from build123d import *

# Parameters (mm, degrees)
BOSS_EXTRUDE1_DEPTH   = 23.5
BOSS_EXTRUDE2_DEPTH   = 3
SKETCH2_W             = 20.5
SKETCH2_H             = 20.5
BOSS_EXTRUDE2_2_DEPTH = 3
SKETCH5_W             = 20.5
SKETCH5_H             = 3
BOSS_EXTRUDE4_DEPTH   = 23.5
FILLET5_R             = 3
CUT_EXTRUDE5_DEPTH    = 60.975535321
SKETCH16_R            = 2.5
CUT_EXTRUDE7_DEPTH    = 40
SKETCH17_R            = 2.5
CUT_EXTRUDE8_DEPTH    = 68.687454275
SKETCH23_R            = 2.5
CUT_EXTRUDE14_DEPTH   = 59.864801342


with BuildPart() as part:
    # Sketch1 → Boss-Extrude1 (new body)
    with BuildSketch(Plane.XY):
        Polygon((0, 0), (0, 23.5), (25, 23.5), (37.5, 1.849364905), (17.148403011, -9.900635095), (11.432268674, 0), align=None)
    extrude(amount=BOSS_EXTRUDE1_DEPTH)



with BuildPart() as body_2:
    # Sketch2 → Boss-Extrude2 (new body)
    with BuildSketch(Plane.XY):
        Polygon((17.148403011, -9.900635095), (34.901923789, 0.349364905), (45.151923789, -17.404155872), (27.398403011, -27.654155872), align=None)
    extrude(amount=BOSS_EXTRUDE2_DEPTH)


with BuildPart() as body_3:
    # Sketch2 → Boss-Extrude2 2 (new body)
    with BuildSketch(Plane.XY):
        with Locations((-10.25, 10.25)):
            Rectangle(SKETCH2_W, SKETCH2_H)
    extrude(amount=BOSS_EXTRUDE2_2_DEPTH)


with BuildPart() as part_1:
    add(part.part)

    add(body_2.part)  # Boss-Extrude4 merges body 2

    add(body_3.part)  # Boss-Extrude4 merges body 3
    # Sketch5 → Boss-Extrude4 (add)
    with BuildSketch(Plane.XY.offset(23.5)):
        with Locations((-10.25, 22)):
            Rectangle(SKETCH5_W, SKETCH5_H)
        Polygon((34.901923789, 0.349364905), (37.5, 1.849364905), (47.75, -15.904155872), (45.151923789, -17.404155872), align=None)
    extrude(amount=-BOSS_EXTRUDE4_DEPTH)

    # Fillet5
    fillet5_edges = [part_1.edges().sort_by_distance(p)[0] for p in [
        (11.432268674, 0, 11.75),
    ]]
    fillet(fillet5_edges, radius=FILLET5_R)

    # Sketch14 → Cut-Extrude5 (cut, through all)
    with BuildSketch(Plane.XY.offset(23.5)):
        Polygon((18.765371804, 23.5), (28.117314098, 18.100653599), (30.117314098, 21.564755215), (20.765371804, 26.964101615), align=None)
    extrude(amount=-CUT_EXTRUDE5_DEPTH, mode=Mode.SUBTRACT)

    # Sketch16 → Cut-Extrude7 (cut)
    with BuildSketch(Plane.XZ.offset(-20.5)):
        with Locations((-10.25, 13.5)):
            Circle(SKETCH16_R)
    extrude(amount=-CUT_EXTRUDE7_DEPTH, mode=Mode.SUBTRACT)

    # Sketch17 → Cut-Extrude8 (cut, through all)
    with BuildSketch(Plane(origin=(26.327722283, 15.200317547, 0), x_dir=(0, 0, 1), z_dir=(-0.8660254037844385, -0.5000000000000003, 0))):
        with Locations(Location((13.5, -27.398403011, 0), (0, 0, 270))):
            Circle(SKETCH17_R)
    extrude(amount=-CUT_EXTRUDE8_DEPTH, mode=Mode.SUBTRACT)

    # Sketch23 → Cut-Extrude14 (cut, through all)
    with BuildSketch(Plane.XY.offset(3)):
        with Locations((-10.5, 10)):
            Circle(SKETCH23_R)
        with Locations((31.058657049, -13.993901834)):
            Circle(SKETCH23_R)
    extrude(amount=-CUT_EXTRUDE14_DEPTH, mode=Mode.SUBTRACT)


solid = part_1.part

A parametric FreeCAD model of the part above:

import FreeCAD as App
import Part
import Sketcher
from FreeCAD import Vector
Q = App.Units.Quantity


def edges_at(feature, points):
    """Names of the edges that pass closest to the given points."""
    edges = feature.Shape.Edges
    near = lambda p: min(range(len(edges)), key=lambda i: edges[i].distToShape(Part.Vertex(*p))[0])
    return sorted({f"Edge{near(p) + 1}" for p in points})


def add_polygon(sketch, points):
    """Adds a closed chain of lines whose ends are joined by coincident constraints."""
    first, n = sketch.GeometryCount, len(points)
    for a, b in zip(points, points[1:] + points[:1]):
        sketch.addGeometry(Part.LineSegment(App.Vector(*a, 0), App.Vector(*b, 0)), False)
    for i in range(n):
        sketch.addConstraint(Sketcher.Constraint("Coincident", first + i, 2, first + (i + 1) % n, 1))

doc = App.newDocument("Part")
body = doc.addObject("PartDesign::Body", "Body")

sketch1 = body.newObject("Sketcher::SketchObject", "Sketch")
sketch1.AttachmentSupport = (doc.getObject("XY_Plane"), [""])
sketch1.MapMode = "FlatFace"
add_polygon(sketch1, [(0, 24), (0, 0), (11, 0), (17, -10), (38, 2), (25, 24)])
sketch1.addConstraint(Sketcher.Constraint("Vertical", 0))
sketch1.addConstraint(Sketcher.Constraint("Horizontal", 1))
sketch1.addConstraint(Sketcher.Constraint("Horizontal", 5))
sketch1.addConstraint(Sketcher.Constraint("Coincident", 0, 2, -1, 1))
sketch1.addConstraint(Sketcher.Constraint("Perpendicular", 2, 3))
sketch1.addConstraint(Sketcher.Constraint("Perpendicular", 3, 4))
sketch1.addConstraint(Sketcher.Constraint("DistanceX", 5, 2, 5, 1, 25.0))
sketch1.addConstraint(Sketcher.Constraint("Angle", 2, Q("-60 deg")))
sketch1.addConstraint(Sketcher.Constraint("Distance", 4, 25.0))
sketch1.addConstraint(Sketcher.Constraint("DistanceY", 0, 2, 0, 1, 23.5))
sketch1.addConstraint(Sketcher.Constraint("Distance", 3, 23.5))
pad1 = body.newObject("PartDesign::Pad", "Pad")
pad1.Profile = sketch1
pad1.Length = 23.5
body2 = doc.addObject("PartDesign::Body", "Body001")

sketch2 = body2.newObject("Sketcher::SketchObject", "Sketch001")
sketch2.AttachmentSupport = (doc.getObject("XY_Plane001"), [""])
sketch2.MapMode = "FlatFace"
add_polygon(sketch2, [(35, 0), (17, -10), (27, -28), (45, -17)])
sketch2.addConstraint(Sketcher.Constraint("Perpendicular", 0, 1))
sketch2.addConstraint(Sketcher.Constraint("Perpendicular", 1, 2))
sketch2.addConstraint(Sketcher.Constraint("Perpendicular", 2, 3))
sketch2.addConstraint(Sketcher.Constraint("Equal", 0, 1))
sketch2.addConstraint(Sketcher.Constraint("Angle", 0, Q("-150 deg")))
sketch2.addConstraint(Sketcher.Constraint("Distance", 0, 20.5))
sketch2.addConstraint(Sketcher.Constraint("DistanceX", -1, 1, 0, 2, 17.148403))
sketch2.addConstraint(Sketcher.Constraint("DistanceY", 0, 2, -1, 1, 9.900635))
pad2 = body2.newObject("PartDesign::Pad", "Pad001")
pad2.Profile = sketch2
pad2.Length = 3
body3 = doc.addObject("PartDesign::Body", "Body002")

sketch3 = body3.newObject("Sketcher::SketchObject", "Sketch002")
sketch3.AttachmentSupport = (doc.getObject("XY_Plane002"), [""])
sketch3.MapMode = "FlatFace"
add_polygon(sketch3, [(-20, 20), (-20, 0), (0, 0), (0, 20)])
sketch3.addConstraint(Sketcher.Constraint("Vertical", 0))
sketch3.addConstraint(Sketcher.Constraint("Horizontal", 1))
sketch3.addConstraint(Sketcher.Constraint("Vertical", 2))
sketch3.addConstraint(Sketcher.Constraint("Horizontal", 3))
sketch3.addConstraint(Sketcher.Constraint("Coincident", 1, 2, -1, 1))
sketch3.addConstraint(Sketcher.Constraint("Equal", 3, 0))
sketch3.addConstraint(Sketcher.Constraint("DistanceX", 1, 1, 1, 2, 20.5))
pad3 = body3.newObject("PartDesign::Pad", "Pad002")
pad3.Profile = sketch3
pad3.Length = 3
doc.recompute()

boolean = body.newObject("PartDesign::Boolean", "Boolean")
boolean.Type = "Fuse"
boolean.addObjects([body2])
doc.recompute()

boolean2 = body.newObject("PartDesign::Boolean", "Boolean001")
boolean2.Type = "Fuse"
boolean2.addObjects([body3])

sketch4 = body.newObject("Sketcher::SketchObject", "Sketch003")
sketch4.AttachmentSupport = (doc.getObject("XY_Plane"), [""])
sketch4.MapMode = "FlatFace"
sketch4.AttachmentOffset = App.Placement(Vector(0, 0, 23.5), App.Rotation())
add_polygon(sketch4, [(-20.5, 23.5), (-20.5, 20.5), (0, 20.5), (0, 23.5)])
add_polygon(sketch4, [(37.5, 1.8), (34.9, 0.3), (45.2, -17.4), (47.8, -15.9)])
sketch4.addConstraint(Sketcher.Constraint("Vertical", 0))
sketch4.addConstraint(Sketcher.Constraint("Horizontal", 1))
sketch4.addConstraint(Sketcher.Constraint("Vertical", 2))
sketch4.addConstraint(Sketcher.Constraint("Horizontal", 3))
sketch4.addConstraint(Sketcher.Constraint("PointOnObject", 1, 2, -2))
sketch4.addConstraint(Sketcher.Constraint("Perpendicular", 4, 5))
sketch4.addConstraint(Sketcher.Constraint("Perpendicular", 5, 6))
sketch4.addConstraint(Sketcher.Constraint("Perpendicular", 6, 7))
sketch4.addConstraint(Sketcher.Constraint("DistanceY", 0, 2, 0, 1, 3.0))
sketch4.addConstraint(Sketcher.Constraint("Angle", 4, Q("-150 deg")))
sketch4.addConstraint(Sketcher.Constraint("Distance", 4, 3.0))
sketch4.addConstraint(Sketcher.Constraint("DistanceX", 1, 1, 1, 2, 20.5))
sketch4.addConstraint(Sketcher.Constraint("Distance", 5, 20.5))
sketch4.addConstraint(Sketcher.Constraint("DistanceY", -1, 1, 0, 2, 20.5))
sketch4.addConstraint(Sketcher.Constraint("DistanceX", -1, 1, 7, 2, 37.5))
sketch4.addConstraint(Sketcher.Constraint("DistanceY", -1, 1, 4, 2, 0.349365))
pad4 = body.newObject("PartDesign::Pad", "Pad003")
pad4.Profile = sketch4
pad4.Length = 23.5
pad4.Reversed = True
doc.recompute()

fillet = body.newObject("PartDesign::Fillet", "Fillet")
fillet.Base = (pad4, edges_at(pad4, [(11.432, 0, 11.75)]))
fillet.Radius = 3

sketch5 = body.newObject("Sketcher::SketchObject", "Sketch004")
sketch5.AttachmentSupport = (doc.getObject("XY_Plane"), [""])
sketch5.MapMode = "FlatFace"
sketch5.AttachmentOffset = App.Placement(Vector(0, 0, 23.5), App.Rotation())
add_polygon(sketch5, [(18.8, 23.5), (28.1, 18.1), (30.1, 21.6), (20.8, 27)])
sketch5.addConstraint(Sketcher.Constraint("Perpendicular", 0, 1))
sketch5.addConstraint(Sketcher.Constraint("Perpendicular", 1, 2))
sketch5.addConstraint(Sketcher.Constraint("Perpendicular", 2, 3))
sketch5.addConstraint(Sketcher.Constraint("Angle", 0, Q("-30 deg")))
sketch5.addConstraint(Sketcher.Constraint("Distance", 1, 4.0))
sketch5.addConstraint(Sketcher.Constraint("DistanceY", -1, 1, 3, 2, 23.5))
sketch5.addConstraint(Sketcher.Constraint("DistanceX", -1, 1, 2, 2, 20.765372))
sketch5.addConstraint(Sketcher.Constraint("DistanceY", 0, 2, 2, 2, 8.863448))
pocket1 = body.newObject("PartDesign::Pocket", "Pocket")
pocket1.Profile = sketch5
pocket1.Type = "ThroughAll"

sketch6 = body.newObject("Sketcher::SketchObject", "Sketch005")
sketch6.AttachmentSupport = (doc.getObject("XZ_Plane"), [""])
sketch6.MapMode = "FlatFace"
sketch6.AttachmentOffset = App.Placement(Vector(0, 0, -20.5), App.Rotation())
sketch6.addGeometry(Part.Circle(Vector(-10.2, 13.5, 0), Vector(0, 0, 1), 2.5), False)
sketch6.addConstraint(Sketcher.Constraint("Diameter", 0, 5.0))
sketch6.addConstraint(Sketcher.Constraint("DistanceY", -1, 1, 0, 3, 13.5))
sketch6.addConstraint(Sketcher.Constraint("DistanceX", 0, 3, -1, 1, 10.25))
pocket2 = body.newObject("PartDesign::Pocket", "Pocket001")
pocket2.Profile = sketch6
pocket2.Length = 40

sketch7 = body.newObject("Sketcher::SketchObject", "Sketch006")
sketch7.Placement = App.Placement(Vector(26.327722, 15.200318, 0), App.Rotation(Vector(0, 0, 1), Vector(-0.5, 0.866025404, 0), Vector(-0.866025404, -0.5, 0), "ZXY"))
sketch7.addGeometry(Part.Circle(Vector(13.5, -27.4, 0), Vector(0, 0, 1), 2.5), False)
sketch7.addConstraint(Sketcher.Constraint("Diameter", 0, 5.0))
sketch7.addConstraint(Sketcher.Constraint("DistanceX", -1, 1, 0, 3, 13.5))
sketch7.addConstraint(Sketcher.Constraint("DistanceY", 0, 3, -1, 1, 27.398403))
pocket3 = body.newObject("PartDesign::Pocket", "Pocket002")
pocket3.Profile = sketch7
pocket3.Type = "ThroughAll"

sketch8 = body.newObject("Sketcher::SketchObject", "Sketch007")
sketch8.AttachmentSupport = (doc.getObject("XY_Plane"), [""])
sketch8.MapMode = "FlatFace"
sketch8.AttachmentOffset = App.Placement(Vector(0, 0, 3), App.Rotation())
sketch8.addGeometry(Part.Circle(Vector(-10.5, 10, 0), Vector(0, 0, 1), 2.5), False)
sketch8.addGeometry(Part.Circle(Vector(31.1, -14, 0), Vector(0, 0, 1), 2.5), False)
sketch8.addConstraint(Sketcher.Constraint("Equal", 0, 1))
sketch8.addConstraint(Sketcher.Constraint("Diameter", 0, 5.0))
sketch8.addConstraint(Sketcher.Constraint("DistanceY", -1, 1, 0, 3, 10.0))
sketch8.addConstraint(Sketcher.Constraint("DistanceX", 0, 3, -1, 1, 10.5))
sketch8.addConstraint(Sketcher.Constraint("DistanceY", 1, 3, -1, 1, 13.993902))
sketch8.addConstraint(Sketcher.Constraint("DistanceX", -1, 1, 1, 3, 31.058657))
pocket4 = body.newObject("PartDesign::Pocket", "Pocket003")
pocket4.Profile = sketch8
pocket4.Type = "ThroughAll"

doc.recompute()
